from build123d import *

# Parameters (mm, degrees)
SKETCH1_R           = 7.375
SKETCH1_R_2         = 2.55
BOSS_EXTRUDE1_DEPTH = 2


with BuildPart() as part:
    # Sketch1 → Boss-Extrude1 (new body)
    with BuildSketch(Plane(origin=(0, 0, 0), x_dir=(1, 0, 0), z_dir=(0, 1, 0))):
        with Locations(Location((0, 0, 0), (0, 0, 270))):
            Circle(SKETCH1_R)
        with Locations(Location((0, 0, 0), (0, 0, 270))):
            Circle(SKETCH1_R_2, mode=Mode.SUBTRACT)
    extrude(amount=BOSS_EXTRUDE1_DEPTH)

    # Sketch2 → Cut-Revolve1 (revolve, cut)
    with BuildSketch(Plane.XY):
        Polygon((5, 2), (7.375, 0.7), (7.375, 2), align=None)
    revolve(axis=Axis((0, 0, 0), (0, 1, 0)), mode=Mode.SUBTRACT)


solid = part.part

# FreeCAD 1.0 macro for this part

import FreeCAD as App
import Part
import Sketcher
from FreeCAD import Vector

doc = App.newDocument("Part")
body = doc.addObject("PartDesign::Body", "Body")

sketch1 = body.newObject("Sketcher::SketchObject", "Sketch")
sketch1.AttachmentSupport = (doc.getObject("XZ_Plane"), [""])
sketch1.MapMode = "FlatFace"
sketch1.addGeometry(Part.Circle(Vector(0, 0, 0), Vector(0, 0, 1), 7.375), False)
sketch1.addGeometry(Part.Circle(Vector(0, 0, 0), Vector(0, 0, 1), 2.55), False)
sketch1.addConstraint(Sketcher.Constraint("Coincident", 0, 3, -1, 1))
sketch1.addConstraint(Sketcher.Constraint("Coincident", 1, 3, -1, 1))
sketch1.addConstraint(Sketcher.Constraint("Diameter", 1, 5.1))
sketch1.addConstraint(Sketcher.Constraint("Diameter", 0, 14.75))
pad1 = body.newObject("PartDesign::Pad", "Pad")
pad1.Profile = sketch1
pad1.Length = 2
pad1.Reversed = True

sketch2 = body.newObject("Sketcher::SketchObject", "Sketch001")
sketch2.AttachmentSupport = (doc.getObject("XY_Plane"), [""])
sketch2.MapMode = "FlatFace"
sketch2.addGeometry(Part.LineSegment(Vector(5, 2, 0), Vector(7.375, 0.7, 0)), False)
sketch2.addGeometry(Part.LineSegment(Vector(7.375, 0.7, 0), Vector(7.375, 2, 0)), False)
sketch2.addGeometry(Part.LineSegment(Vector(7.375, 2, 0), Vector(5, 2, 0)), False)
sketch2.addConstraint(Sketcher.Constraint("Coincident", 0, 2, 1, 1))
sketch2.addConstraint(Sketcher.Constraint("Coincident", 1, 2, 2, 1))
sketch2.addConstraint(Sketcher.Constraint("Coincident", 2, 2, 0, 1))
sketch2.addConstraint(Sketcher.Constraint("Vertical", 1))
sketch2.addConstraint(Sketcher.Constraint("Horizontal", 2))
sketch2.addConstraint(Sketcher.Constraint("DistanceY", 1, 1, 1, 2, 1.3))
sketch2.addConstraint(Sketcher.Constraint("DistanceY", -1, 1, 1, 2, 2.0))
sketch2.addConstraint(Sketcher.Constraint("DistanceX", -1, 1, 2, 2, 5.0))
sketch2.addConstraint(Sketcher.Constraint("DistanceX", 2, 2, 2, 1, 2.375))
groove = body.newObject("PartDesign::Groove", "Groove")
groove.Profile = sketch2
groove.ReferenceAxis = (sketch2, ["V_Axis"])
groove.Angle = 360

doc.recompute()
